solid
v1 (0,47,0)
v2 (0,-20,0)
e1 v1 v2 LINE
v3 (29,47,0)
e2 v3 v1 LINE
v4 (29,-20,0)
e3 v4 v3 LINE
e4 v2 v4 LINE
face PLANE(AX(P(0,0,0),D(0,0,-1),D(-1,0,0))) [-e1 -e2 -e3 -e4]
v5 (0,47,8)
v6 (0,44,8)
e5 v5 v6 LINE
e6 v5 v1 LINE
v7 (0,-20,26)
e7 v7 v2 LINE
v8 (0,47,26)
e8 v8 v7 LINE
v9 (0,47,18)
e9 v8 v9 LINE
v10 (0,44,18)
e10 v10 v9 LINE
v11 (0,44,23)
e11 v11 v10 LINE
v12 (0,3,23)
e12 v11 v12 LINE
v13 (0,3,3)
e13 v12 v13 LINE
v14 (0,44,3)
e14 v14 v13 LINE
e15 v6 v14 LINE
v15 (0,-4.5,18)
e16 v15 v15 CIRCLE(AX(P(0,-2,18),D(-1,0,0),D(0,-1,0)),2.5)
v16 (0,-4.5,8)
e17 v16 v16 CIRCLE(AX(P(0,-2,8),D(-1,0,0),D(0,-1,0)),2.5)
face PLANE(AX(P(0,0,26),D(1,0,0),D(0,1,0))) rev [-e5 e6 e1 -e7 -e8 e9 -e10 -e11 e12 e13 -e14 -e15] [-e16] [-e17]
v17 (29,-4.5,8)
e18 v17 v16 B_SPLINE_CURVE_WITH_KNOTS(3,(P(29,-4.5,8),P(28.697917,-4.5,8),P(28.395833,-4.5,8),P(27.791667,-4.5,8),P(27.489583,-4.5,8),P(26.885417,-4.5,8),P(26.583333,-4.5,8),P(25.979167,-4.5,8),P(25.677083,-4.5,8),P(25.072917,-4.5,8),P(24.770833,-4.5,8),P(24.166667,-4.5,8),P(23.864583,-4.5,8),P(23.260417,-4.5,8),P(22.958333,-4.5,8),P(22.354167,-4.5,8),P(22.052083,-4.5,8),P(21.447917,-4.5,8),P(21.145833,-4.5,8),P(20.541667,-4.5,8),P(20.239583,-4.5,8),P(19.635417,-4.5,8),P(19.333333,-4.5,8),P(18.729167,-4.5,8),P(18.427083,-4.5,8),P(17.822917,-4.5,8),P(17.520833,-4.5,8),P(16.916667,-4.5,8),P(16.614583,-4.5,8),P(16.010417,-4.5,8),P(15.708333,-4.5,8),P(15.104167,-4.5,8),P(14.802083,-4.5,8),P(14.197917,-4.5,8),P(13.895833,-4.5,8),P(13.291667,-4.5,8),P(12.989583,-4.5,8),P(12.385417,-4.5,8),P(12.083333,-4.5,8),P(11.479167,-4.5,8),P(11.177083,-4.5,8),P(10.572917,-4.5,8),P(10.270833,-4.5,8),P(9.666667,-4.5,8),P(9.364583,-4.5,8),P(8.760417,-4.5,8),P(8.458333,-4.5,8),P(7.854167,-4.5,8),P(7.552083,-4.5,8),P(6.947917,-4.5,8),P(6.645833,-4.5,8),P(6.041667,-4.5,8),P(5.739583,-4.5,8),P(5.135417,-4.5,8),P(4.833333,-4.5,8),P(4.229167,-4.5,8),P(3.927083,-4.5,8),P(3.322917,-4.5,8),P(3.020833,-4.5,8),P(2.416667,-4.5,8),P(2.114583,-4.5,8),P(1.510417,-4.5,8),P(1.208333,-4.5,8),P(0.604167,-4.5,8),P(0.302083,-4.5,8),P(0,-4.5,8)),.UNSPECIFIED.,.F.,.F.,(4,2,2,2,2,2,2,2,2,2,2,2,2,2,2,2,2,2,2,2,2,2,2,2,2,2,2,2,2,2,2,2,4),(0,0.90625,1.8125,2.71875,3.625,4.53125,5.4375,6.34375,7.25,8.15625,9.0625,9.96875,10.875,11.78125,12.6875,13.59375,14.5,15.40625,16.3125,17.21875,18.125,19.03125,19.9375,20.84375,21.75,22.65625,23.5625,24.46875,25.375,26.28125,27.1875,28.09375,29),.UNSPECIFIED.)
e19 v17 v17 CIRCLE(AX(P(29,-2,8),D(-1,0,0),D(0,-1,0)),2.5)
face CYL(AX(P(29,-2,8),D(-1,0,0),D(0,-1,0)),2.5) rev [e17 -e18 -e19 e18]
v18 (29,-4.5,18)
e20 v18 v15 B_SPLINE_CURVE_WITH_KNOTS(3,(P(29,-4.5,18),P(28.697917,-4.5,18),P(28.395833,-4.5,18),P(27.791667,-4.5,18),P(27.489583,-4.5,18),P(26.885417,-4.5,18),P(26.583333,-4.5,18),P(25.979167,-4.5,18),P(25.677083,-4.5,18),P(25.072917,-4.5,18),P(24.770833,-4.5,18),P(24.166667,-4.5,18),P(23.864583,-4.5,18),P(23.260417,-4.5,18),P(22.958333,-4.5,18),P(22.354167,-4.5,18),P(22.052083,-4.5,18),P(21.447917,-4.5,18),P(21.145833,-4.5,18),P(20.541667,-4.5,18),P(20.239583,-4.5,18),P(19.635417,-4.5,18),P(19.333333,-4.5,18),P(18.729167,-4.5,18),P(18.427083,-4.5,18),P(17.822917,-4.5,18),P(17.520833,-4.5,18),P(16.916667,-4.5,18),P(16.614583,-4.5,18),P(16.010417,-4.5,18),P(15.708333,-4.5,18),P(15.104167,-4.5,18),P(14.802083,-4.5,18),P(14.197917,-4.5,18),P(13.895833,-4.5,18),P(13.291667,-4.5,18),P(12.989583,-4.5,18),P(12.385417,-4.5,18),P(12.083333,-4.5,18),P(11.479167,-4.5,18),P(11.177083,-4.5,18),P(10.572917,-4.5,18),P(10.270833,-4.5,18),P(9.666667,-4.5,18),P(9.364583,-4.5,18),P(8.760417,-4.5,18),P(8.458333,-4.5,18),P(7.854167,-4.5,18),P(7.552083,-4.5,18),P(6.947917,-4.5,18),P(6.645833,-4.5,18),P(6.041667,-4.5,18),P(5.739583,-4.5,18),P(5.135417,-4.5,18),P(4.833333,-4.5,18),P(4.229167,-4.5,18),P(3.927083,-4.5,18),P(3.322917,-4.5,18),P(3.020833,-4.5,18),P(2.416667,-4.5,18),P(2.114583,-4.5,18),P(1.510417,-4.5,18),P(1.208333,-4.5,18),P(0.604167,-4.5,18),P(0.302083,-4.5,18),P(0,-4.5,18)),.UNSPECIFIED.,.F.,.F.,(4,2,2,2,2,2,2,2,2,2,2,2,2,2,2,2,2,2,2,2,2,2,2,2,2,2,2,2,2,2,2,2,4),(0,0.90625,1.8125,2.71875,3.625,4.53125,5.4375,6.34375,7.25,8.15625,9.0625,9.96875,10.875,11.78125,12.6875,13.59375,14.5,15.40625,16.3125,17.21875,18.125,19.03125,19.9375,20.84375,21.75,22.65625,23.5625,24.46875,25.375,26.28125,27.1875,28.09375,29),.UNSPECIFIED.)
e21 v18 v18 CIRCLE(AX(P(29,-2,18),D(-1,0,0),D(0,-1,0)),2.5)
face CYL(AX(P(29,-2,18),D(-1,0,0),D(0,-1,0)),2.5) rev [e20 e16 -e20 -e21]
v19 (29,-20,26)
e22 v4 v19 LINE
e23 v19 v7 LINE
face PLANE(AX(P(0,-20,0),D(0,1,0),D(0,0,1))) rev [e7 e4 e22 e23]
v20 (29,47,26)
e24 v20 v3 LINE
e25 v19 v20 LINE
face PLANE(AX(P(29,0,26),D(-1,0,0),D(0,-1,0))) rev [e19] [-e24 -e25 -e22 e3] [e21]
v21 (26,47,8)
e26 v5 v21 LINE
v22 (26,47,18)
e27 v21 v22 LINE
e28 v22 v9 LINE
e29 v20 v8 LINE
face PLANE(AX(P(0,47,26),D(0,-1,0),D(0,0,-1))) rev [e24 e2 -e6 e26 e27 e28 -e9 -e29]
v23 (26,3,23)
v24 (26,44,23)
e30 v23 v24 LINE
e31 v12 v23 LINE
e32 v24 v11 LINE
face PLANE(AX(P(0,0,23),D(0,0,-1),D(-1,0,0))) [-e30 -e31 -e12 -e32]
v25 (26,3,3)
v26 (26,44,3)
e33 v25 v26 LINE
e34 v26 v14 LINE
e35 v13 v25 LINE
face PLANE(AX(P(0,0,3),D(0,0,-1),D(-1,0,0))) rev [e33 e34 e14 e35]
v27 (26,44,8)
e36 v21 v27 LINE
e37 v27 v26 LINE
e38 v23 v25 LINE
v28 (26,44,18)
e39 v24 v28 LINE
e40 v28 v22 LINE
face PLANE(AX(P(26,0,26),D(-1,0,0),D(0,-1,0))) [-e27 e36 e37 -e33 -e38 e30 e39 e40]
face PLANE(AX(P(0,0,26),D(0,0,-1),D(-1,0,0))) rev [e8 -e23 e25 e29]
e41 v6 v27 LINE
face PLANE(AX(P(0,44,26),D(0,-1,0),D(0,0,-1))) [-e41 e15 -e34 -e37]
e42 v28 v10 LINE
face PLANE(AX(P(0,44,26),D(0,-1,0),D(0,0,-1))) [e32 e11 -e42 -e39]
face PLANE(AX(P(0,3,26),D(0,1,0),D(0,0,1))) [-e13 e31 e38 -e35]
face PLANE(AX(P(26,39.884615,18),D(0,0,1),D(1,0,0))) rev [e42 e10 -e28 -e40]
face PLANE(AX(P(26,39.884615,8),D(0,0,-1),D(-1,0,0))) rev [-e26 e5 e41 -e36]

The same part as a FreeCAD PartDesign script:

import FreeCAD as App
import Part
import Sketcher

V = App.Vector


def faces_at(feature, points):
    """Names of the faces that lie closest to the given points."""
    faces = feature.Shape.Faces
    near = lambda p: min(range(len(faces)), key=lambda i: faces[i].distToShape(Part.Vertex(*p))[0])
    return sorted({f"Face{near(p) + 1}" for p in points})


def add_polygon(sketch, points):
    """Adds a closed chain of lines whose ends are joined by coincident constraints."""
    first, n = sketch.GeometryCount, len(points)
    for a, b in zip(points, points[1:] + points[:1]):
        sketch.addGeometry(Part.LineSegment(App.Vector(*a, 0), App.Vector(*b, 0)), False)
    for i in range(n):
        sketch.addConstraint(Sketcher.Constraint("Coincident", first + i, 2, first + (i + 1) % n, 1))

doc = App.newDocument("Part")
body = doc.addObject("PartDesign::Body", "Body")

sketch1 = body.newObject("Sketcher::SketchObject", "Sketch")
sketch1.AttachmentSupport = (doc.getObject("XY_Plane"), [""])
sketch1.MapMode = "FlatFace"
add_polygon(sketch1, [(0, 47), (0, 0), (29, 0), (29, 47)])
sketch1.addConstraint(Sketcher.Constraint("Vertical", 0))
sketch1.addConstraint(Sketcher.Constraint("Horizontal", 1))
sketch1.addConstraint(Sketcher.Constraint("Vertical", 2))
sketch1.addConstraint(Sketcher.Constraint("Horizontal", 3))
sketch1.addConstraint(Sketcher.Constraint("Coincident", 0, 2, -1, 1))
sketch1.addConstraint(Sketcher.Constraint("DistanceX", 1, 1, 1, 2, 29.0))
sketch1.addConstraint(Sketcher.Constraint("DistanceY", 0, 2, 0, 1, 47.0))
pad1 = body.newObject("PartDesign::Pad", "Pad")
pad1.Profile = sketch1
pad1.Length = 26
doc.recompute()

thickness = body.newObject("PartDesign::Thickness", "Thickness")
thickness.Base = (pad1, faces_at(pad1, [(0, 23.5, 13)]))
thickness.Value = 3
thickness.Reversed = True
thickness.Join = "Intersection"

sketch2 = body.newObject("Sketcher::SketchObject", "Sketch001")
sketch2.AttachmentSupport = (doc.getObject("YZ_Plane"), [""])
sketch2.MapMode = "FlatFace"
add_polygon(sketch2, [(48, 8), (40, 8), (40, 18), (48, 18)])
sketch2.addConstraint(Sketcher.Constraint("Horizontal", 0))
sketch2.addConstraint(Sketcher.Constraint("Vertical", 1))
sketch2.addConstraint(Sketcher.Constraint("Horizontal", 2))
sketch2.addConstraint(Sketcher.Constraint("Vertical", 3))
sketch2.addConstraint(Sketcher.Constraint("DistanceY", 1, 1, 1, 2, 10.0))
sketch2.addConstraint(Sketcher.Constraint("DistanceY", -1, 1, 0, 2, 8.0))
sketch2.addConstraint(Sketcher.Constraint("DistanceX", 0, 2, 0, 1, 8.230769))
sketch2.addConstraint(Sketcher.Constraint("DistanceX", -1, 1, 0, 2, 39.884615))
pocket1 = body.newObject("PartDesign::Pocket", "Pocket")
pocket1.Profile = sketch2
pocket1.Length = 26
pocket1.Reversed = True

sketch3 = body.newObject("Sketcher::SketchObject", "Sketch002")
sketch3.AttachmentSupport = (doc.getObject("XZ_Plane"), [""])
sketch3.MapMode = "FlatFace"
add_polygon(sketch3, [(0, 26), (0, 0), (29, 0), (29, 26)])
sketch3.addConstraint(Sketcher.Constraint("Vertical", 0))
sketch3.addConstraint(Sketcher.Constraint("Horizontal", 1))
sketch3.addConstraint(Sketcher.Constraint("Vertical", 2))
sketch3.addConstraint(Sketcher.Constraint("Horizontal", 3))
sketch3.addConstraint(Sketcher.Constraint("Coincident", 0, 2, -1, 1))
sketch3.addConstraint(Sketcher.Constraint("DistanceX", 1, 1, 1, 2, 29.0))
sketch3.addConstraint(Sketcher.Constraint("DistanceY", 0, 2, 0, 1, 26.0))
pad2 = body.newObject("PartDesign::Pad", "Pad001")
pad2.Profile = sketch3
pad2.Length = 20

sketch4 = body.newObject("Sketcher::SketchObject", "Sketch003")
sketch4.AttachmentSupport = (doc.getObject("YZ_Plane"), [""])
sketch4.MapMode = "FlatFace"
sketch4.addGeometry(Part.Circle(V(-2, 8, 0), V(0, 0, 1), 2.5), False)
sketch4.addGeometry(Part.Circle(V(-2, 18, 0), V(0, 0, 1), 2.5), False)
sketch4.addConstraint(Sketcher.Constraint("Equal", 0, 1))
sketch4.addConstraint(Sketcher.Constraint("Vertical", 0, 3, 1, 3))
sketch4.addConstraint(Sketcher.Constraint("Diameter", 0, 5.0))
sketch4.addConstraint(Sketcher.Constraint("DistanceX", 0, 3, -1, 1, 2.0))
sketch4.addConstraint(Sketcher.Constraint("DistanceY", -1, 1, 0, 3, 8.0))
sketch4.addConstraint(Sketcher.Constraint("DistanceY", -1, 1, 1, 3, 18.0))
pocket2 = body.newObject("PartDesign::Pocket", "Pocket001")
pocket2.Profile = sketch4
pocket2.Type = "ThroughAll"
pocket2.Reversed = True

doc.recompute()
